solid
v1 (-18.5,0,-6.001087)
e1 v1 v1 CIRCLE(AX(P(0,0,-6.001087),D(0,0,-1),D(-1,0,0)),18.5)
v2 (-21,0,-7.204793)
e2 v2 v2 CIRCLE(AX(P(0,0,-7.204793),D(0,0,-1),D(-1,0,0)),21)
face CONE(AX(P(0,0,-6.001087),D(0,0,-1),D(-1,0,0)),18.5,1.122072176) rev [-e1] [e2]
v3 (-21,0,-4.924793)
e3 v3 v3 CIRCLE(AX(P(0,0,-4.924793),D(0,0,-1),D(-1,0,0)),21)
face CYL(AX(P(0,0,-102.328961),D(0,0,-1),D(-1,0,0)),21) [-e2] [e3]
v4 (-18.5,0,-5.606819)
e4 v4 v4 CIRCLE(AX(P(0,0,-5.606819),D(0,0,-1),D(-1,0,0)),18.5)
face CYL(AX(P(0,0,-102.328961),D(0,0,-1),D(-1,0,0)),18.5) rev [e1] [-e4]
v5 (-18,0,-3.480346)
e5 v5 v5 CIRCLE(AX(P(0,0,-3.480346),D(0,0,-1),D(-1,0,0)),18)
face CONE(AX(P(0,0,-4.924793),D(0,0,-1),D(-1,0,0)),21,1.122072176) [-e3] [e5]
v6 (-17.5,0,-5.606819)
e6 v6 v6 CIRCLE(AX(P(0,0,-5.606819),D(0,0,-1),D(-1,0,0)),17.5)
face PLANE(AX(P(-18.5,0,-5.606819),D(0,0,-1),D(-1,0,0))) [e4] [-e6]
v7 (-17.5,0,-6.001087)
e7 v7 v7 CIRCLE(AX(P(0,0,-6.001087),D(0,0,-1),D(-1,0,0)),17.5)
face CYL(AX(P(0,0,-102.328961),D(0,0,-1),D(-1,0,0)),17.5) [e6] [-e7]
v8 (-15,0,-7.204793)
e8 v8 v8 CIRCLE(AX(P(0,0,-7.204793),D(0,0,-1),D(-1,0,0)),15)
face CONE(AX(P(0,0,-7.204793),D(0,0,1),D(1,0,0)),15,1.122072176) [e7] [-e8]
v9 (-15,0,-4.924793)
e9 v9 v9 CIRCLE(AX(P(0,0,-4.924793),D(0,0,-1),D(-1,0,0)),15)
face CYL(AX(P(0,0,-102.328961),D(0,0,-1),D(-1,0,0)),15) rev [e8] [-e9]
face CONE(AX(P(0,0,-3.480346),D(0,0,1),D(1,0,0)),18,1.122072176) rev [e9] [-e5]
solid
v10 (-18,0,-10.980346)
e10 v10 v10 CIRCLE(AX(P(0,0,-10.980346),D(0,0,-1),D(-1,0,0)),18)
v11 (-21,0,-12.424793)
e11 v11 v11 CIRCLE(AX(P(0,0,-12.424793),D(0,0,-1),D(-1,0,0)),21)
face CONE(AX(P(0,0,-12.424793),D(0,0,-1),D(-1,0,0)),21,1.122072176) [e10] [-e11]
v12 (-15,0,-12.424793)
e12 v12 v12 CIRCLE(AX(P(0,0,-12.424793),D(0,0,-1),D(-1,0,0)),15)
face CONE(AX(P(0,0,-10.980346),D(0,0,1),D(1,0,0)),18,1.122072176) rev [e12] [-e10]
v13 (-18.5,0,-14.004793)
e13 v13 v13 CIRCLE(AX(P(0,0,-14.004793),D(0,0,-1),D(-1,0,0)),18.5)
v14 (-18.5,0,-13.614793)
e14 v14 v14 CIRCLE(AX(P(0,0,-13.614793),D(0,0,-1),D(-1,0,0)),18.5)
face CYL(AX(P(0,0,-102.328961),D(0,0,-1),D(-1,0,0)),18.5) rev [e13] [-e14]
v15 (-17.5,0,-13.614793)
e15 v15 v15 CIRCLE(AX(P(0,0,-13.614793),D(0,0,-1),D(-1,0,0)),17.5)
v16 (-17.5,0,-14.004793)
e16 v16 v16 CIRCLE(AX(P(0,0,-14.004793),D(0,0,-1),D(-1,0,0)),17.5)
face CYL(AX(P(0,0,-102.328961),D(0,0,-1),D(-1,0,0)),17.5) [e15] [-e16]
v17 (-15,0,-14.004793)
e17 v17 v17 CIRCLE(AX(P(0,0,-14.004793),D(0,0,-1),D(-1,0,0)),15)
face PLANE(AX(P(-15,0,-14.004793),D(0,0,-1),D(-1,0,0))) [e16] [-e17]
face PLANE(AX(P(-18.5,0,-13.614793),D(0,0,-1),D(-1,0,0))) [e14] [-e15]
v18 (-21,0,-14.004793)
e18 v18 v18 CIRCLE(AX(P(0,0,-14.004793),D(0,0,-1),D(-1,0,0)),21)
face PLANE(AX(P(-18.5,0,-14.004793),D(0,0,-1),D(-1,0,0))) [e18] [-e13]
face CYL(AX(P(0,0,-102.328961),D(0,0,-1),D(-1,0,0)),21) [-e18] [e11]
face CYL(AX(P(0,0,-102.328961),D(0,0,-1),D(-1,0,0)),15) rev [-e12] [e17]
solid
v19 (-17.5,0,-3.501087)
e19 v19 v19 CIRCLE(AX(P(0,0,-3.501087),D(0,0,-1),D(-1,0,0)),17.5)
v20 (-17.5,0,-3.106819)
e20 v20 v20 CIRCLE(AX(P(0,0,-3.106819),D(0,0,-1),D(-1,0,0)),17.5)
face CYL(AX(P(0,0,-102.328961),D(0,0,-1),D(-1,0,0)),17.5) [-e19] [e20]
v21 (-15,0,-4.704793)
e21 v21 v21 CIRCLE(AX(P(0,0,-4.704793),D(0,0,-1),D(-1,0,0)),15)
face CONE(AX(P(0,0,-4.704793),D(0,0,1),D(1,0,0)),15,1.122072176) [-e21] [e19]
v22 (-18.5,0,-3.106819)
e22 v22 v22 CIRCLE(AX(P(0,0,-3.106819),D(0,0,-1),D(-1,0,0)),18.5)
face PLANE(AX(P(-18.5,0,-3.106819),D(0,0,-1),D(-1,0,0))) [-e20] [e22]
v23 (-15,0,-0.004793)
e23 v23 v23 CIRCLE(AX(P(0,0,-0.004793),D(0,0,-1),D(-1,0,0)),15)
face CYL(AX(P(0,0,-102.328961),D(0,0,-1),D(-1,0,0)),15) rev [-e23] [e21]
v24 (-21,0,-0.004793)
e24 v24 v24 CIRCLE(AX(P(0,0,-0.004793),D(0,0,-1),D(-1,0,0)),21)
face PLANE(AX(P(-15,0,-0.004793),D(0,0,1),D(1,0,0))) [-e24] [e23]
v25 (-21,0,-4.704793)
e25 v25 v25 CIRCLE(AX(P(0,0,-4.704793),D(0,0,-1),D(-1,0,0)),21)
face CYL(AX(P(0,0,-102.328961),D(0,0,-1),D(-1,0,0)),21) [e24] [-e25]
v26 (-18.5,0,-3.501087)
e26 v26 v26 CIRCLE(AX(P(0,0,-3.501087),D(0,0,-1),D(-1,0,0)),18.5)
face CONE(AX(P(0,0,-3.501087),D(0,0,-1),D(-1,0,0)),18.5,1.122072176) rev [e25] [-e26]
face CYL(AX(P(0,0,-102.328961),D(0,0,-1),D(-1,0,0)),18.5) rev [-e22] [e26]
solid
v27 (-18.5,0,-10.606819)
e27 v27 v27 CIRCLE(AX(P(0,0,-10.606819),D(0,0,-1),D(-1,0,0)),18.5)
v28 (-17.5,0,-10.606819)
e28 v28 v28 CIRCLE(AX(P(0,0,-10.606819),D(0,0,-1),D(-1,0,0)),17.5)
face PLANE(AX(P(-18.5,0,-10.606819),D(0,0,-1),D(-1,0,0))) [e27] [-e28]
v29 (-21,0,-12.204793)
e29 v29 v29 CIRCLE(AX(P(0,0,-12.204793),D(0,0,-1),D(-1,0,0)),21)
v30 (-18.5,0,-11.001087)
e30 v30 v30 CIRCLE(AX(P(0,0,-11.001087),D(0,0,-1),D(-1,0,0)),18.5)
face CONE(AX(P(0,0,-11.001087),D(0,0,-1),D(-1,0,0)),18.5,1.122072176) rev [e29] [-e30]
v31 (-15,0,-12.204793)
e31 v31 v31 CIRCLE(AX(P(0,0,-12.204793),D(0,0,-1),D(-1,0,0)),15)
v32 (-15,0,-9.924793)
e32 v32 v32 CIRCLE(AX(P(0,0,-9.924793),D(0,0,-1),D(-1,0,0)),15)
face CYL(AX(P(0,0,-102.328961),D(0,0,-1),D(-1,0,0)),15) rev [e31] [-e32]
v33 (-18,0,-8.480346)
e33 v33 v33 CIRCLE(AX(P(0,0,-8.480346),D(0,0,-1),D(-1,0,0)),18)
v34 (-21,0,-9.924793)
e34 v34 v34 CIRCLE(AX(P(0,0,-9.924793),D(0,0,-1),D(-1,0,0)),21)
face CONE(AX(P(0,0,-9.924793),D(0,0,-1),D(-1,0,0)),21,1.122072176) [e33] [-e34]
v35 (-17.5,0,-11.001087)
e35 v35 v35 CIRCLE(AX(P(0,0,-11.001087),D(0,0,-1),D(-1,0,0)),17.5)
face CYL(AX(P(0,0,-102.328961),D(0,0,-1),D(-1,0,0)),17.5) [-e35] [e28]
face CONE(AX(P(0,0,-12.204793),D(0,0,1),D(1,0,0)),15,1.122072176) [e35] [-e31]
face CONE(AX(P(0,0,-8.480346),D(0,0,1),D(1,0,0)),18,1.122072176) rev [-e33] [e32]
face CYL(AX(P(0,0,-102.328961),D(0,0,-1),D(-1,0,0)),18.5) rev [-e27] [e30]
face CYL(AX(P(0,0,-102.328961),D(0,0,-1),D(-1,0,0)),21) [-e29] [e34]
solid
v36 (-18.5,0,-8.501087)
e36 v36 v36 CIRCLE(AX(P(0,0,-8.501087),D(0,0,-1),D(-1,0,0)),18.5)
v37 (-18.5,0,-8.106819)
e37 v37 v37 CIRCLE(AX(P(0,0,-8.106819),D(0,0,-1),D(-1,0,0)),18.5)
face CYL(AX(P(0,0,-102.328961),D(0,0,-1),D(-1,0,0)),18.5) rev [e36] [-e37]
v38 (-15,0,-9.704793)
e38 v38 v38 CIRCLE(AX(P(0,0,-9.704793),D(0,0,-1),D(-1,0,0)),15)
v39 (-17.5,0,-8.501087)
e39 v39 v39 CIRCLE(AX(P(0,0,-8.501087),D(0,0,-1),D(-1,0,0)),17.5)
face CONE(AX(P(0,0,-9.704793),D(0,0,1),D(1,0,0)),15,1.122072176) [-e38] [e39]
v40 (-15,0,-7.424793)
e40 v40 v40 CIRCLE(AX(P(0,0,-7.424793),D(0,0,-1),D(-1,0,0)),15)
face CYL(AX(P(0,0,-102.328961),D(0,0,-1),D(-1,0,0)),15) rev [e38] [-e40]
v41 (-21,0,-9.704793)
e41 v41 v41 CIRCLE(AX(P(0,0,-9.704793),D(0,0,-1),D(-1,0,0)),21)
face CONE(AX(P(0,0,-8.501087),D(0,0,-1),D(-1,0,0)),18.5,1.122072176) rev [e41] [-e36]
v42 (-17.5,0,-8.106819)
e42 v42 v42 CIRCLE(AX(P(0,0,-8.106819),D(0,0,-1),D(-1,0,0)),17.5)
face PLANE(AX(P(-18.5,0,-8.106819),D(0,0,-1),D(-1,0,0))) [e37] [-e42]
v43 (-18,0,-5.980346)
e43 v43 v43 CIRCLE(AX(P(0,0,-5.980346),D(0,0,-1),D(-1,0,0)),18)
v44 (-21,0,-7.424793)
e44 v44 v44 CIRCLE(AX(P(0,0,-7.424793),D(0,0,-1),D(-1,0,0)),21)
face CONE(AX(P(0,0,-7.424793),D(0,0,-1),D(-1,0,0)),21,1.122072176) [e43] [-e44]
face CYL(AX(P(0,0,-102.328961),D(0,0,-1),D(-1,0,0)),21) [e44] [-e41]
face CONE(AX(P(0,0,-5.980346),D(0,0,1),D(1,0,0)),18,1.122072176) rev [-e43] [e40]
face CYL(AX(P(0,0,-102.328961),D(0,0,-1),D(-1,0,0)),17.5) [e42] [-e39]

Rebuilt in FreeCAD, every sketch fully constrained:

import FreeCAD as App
import Part
import Sketcher

V = App.Vector
Q = App.Units.Quantity

doc = App.newDocument("Part")
body = doc.addObject("PartDesign::Body", "Body")
body.AllowCompound = True

# Sketch on XZ plane
sketch1 = body.newObject("Sketcher::SketchObject", "Sketch")
sketch1.AttachmentSupport = (doc.getObject("XZ_Plane"), [""])
sketch1.MapMode = "FlatFace"
sketch1.addGeometry([
    Part.LineSegment(V(-21, 0, 0), V(-15, 0, 0)),  # 0
    Part.LineSegment(V(-15, 0, 0), V(-15, -4.7, 0)),  # 1
    Part.LineSegment(V(-15, -4.7, 0), V(-17.5, -3.5, 0)),  # 2
    Part.LineSegment(V(-17.5, -3.5, 0), V(-17.5, -3.11, 0)),  # 3
    Part.LineSegment(V(-17.5, -3.11, 0), V(-18.5, -3.11, 0)),  # 4
    Part.LineSegment(V(-18.5, -3.11, 0), V(-18.5, -3.5, 0)),  # 5
    Part.LineSegment(V(-18.5, -3.5, 0), V(-21, -4.7, 0)),  # 6
    Part.LineSegment(V(-21, -4.7, 0), V(-21, 0, 0)),  # 7
    Part.LineSegment(V(-15, -14, 0), V(-17.5, -14, 0)),  # 8
    Part.LineSegment(V(-17.5, -14, 0), V(-17.5, -13.61, 0)),  # 9
    Part.LineSegment(V(-17.5, -13.61, 0), V(-18.5, -13.61, 0)),  # 10
    Part.LineSegment(V(-18.5, -13.61, 0), V(-18.5, -14, 0)),  # 11
    Part.LineSegment(V(-18.5, -14, 0), V(-21, -14, 0)),  # 12
    Part.LineSegment(V(-21, -14, 0), V(-21, -12.42, 0)),  # 13
    Part.LineSegment(V(-21, -12.42, 0), V(-18, -10.98, 0)),  # 14
    Part.LineSegment(V(-18, -10.98, 0), V(-15, -12.42, 0)),  # 15
    Part.LineSegment(V(-15, -12.42, 0), V(-15, -14, 0)),  # 16
    Part.LineSegment(V(-15, -12.2, 0), V(-17.5, -11, 0)),  # 17
    Part.LineSegment(V(-17.5, -11, 0), V(-17.5, -10.61, 0)),  # 18
    Part.LineSegment(V(-17.5, -10.61, 0), V(-18.5, -10.61, 0)),  # 19
    Part.LineSegment(V(-18.5, -10.61, 0), V(-18.5, -11, 0)),  # 20
    Part.LineSegment(V(-18.5, -11, 0), V(-21, -12.2, 0)),  # 21
    Part.LineSegment(V(-21, -12.2, 0), V(-21, -9.92, 0)),  # 22
    Part.LineSegment(V(-21, -9.92, 0), V(-18, -8.48, 0)),  # 23
    Part.LineSegment(V(-18, -8.48, 0), V(-15, -9.92, 0)),  # 24
    Part.LineSegment(V(-15, -9.92, 0), V(-15, -12.2, 0)),  # 25
    Part.LineSegment(V(-18.5, -8.5, 0), V(-21, -9.7, 0)),  # 26
    Part.LineSegment(V(-21, -9.7, 0), V(-21, -7.42, 0)),  # 27
    Part.LineSegment(V(-21, -7.42, 0), V(-18, -5.98, 0)),  # 28
    Part.LineSegment(V(-18, -5.98, 0), V(-15, -7.42, 0)),  # 29
    Part.LineSegment(V(-15, -7.42, 0), V(-15, -9.7, 0)),  # 30
    Part.LineSegment(V(-15, -9.7, 0), V(-17.5, -8.5, 0)),  # 31
    Part.LineSegment(V(-17.5, -8.5, 0), V(-17.5, -8.11, 0)),  # 32
    Part.LineSegment(V(-17.5, -8.11, 0), V(-18.5, -8.11, 0)),  # 33
    Part.LineSegment(V(-18.5, -8.11, 0), V(-18.5, -8.5, 0)),  # 34
    Part.LineSegment(V(-18.5, -6, 0), V(-21, -7.2, 0)),  # 35
    Part.LineSegment(V(-21, -7.2, 0), V(-21, -4.92, 0)),  # 36
    Part.LineSegment(V(-21, -4.92, 0), V(-18, -3.48, 0)),  # 37
    Part.LineSegment(V(-18, -3.48, 0), V(-15, -4.92, 0)),  # 38
    Part.LineSegment(V(-15, -4.92, 0), V(-15, -7.2, 0)),  # 39
    Part.LineSegment(V(-15, -7.2, 0), V(-17.5, -6, 0)),  # 40
    Part.LineSegment(V(-17.5, -6, 0), V(-17.5, -5.61, 0)),  # 41
    Part.LineSegment(V(-17.5, -5.61, 0), V(-18.5, -5.61, 0)),  # 42
    Part.LineSegment(V(-18.5, -5.61, 0), V(-18.5, -6, 0)),  # 43
], False)
sketch1.addConstraint([
    Sketcher.Constraint("Coincident", 0, 2, 1, 1),
    Sketcher.Constraint("Coincident", 1, 2, 2, 1),
    Sketcher.Constraint("Coincident", 2, 2, 3, 1),
    Sketcher.Constraint("Coincident", 3, 2, 4, 1),
    Sketcher.Constraint("Coincident", 4, 2, 5, 1),
    Sketcher.Constraint("Coincident", 5, 2, 6, 1),
    Sketcher.Constraint("Coincident", 6, 2, 7, 1),
    Sketcher.Constraint("Coincident", 7, 2, 0, 1),
    Sketcher.Constraint("Coincident", 8, 2, 9, 1),
    Sketcher.Constraint("Coincident", 9, 2, 10, 1),
    Sketcher.Constraint("Coincident", 10, 2, 11, 1),
    Sketcher.Constraint("Coincident", 11, 2, 12, 1),
    Sketcher.Constraint("Coincident", 12, 2, 13, 1),
    Sketcher.Constraint("Coincident", 13, 2, 14, 1),
    Sketcher.Constraint("Coincident", 14, 2, 15, 1),
    Sketcher.Constraint("Coincident", 15, 2, 16, 1),
    Sketcher.Constraint("Coincident", 16, 2, 8, 1),
    Sketcher.Constraint("Coincident", 17, 2, 18, 1),
    Sketcher.Constraint("Coincident", 18, 2, 19, 1),
    Sketcher.Constraint("Coincident", 19, 2, 20, 1),
    Sketcher.Constraint("Coincident", 20, 2, 21, 1),
    Sketcher.Constraint("Coincident", 21, 2, 22, 1),
    Sketcher.Constraint("Coincident", 22, 2, 23, 1),
    Sketcher.Constraint("Coincident", 23, 2, 24, 1),
    Sketcher.Constraint("Coincident", 24, 2, 25, 1),
    Sketcher.Constraint("Coincident", 25, 2, 17, 1),
    Sketcher.Constraint("Coincident", 26, 2, 27, 1),
    Sketcher.Constraint("Coincident", 27, 2, 28, 1),
    Sketcher.Constraint("Coincident", 28, 2, 29, 1),
    Sketcher.Constraint("Coincident", 29, 2, 30, 1),
    Sketcher.Constraint("Coincident", 30, 2, 31, 1),
    Sketcher.Constraint("Coincident", 31, 2, 32, 1),
    Sketcher.Constraint("Coincident", 32, 2, 33, 1),
    Sketcher.Constraint("Coincident", 33, 2, 34, 1),
    Sketcher.Constraint("Coincident", 34, 2, 26, 1),
    Sketcher.Constraint("Coincident", 35, 2, 36, 1),
    Sketcher.Constraint("Coincident", 36, 2, 37, 1),
    Sketcher.Constraint("Coincident", 37, 2, 38, 1),
    Sketcher.Constraint("Coincident", 38, 2, 39, 1),
    Sketcher.Constraint("Coincident", 39, 2, 40, 1),
    Sketcher.Constraint("Coincident", 40, 2, 41, 1),
    Sketcher.Constraint("Coincident", 41, 2, 42, 1),
    Sketcher.Constraint("Coincident", 42, 2, 43, 1),
    Sketcher.Constraint("Coincident", 43, 2, 35, 1),
    Sketcher.Constraint("Horizontal", 0),
    Sketcher.Constraint("Vertical", 1),
    Sketcher.Constraint("Vertical", 3),
    Sketcher.Constraint("Horizontal", 4),
    Sketcher.Constraint("Vertical", 5),
    Sketcher.Constraint("Vertical", 7),
    Sketcher.Constraint("Horizontal", 8),
    Sketcher.Constraint("Vertical", 9),
    Sketcher.Constraint("Horizontal", 10),
    Sketcher.Constraint("Vertical", 11),
    Sketcher.Constraint("Horizontal", 12),
    Sketcher.Constraint("Vertical", 13),
    Sketcher.Constraint("Vertical", 16),
    Sketcher.Constraint("Vertical", 18),
    Sketcher.Constraint("Horizontal", 19),
    Sketcher.Constraint("Vertical", 20),
    Sketcher.Constraint("Vertical", 22),
    Sketcher.Constraint("Vertical", 25),
    Sketcher.Constraint("Vertical", 27),
    Sketcher.Constraint("Vertical", 30),
    Sketcher.Constraint("Vertical", 32),
    Sketcher.Constraint("Horizontal", 33),
    Sketcher.Constraint("Vertical", 34),
    Sketcher.Constraint("Vertical", 36),
    Sketcher.Constraint("Vertical", 39),
    Sketcher.Constraint("Vertical", 41),
    Sketcher.Constraint("Horizontal", 42),
    Sketcher.Constraint("Vertical", 43),
    Sketcher.Constraint("Parallel", 6, 14),
    Sketcher.Constraint("Parallel", 2, 15),
    Sketcher.Constraint("Parallel", 15, 17),
    Sketcher.Constraint("Parallel", 14, 21),
    Sketcher.Constraint("Parallel", 21, 23),
    Sketcher.Constraint("Parallel", 17, 24),
    Sketcher.Constraint("Parallel", 23, 26),
    Sketcher.Constraint("Parallel", 26, 28),
    Sketcher.Constraint("Parallel", 24, 29),
    Sketcher.Constraint("Parallel", 29, 31),
    Sketcher.Constraint("Parallel", 28, 35),
    Sketcher.Constraint("Parallel", 35, 37),
    Sketcher.Constraint("Parallel", 31, 38),
    Sketcher.Constraint("Parallel", 38, 40),
    Sketcher.Constraint("Horizontal", 2, 2, 5, 2),
    Sketcher.Constraint("Horizontal", 1, 2, 6, 2),
    Sketcher.Constraint("Horizontal", 8, 2, 11, 2),
    Sketcher.Constraint("Horizontal", 13, 2, 15, 2),
    Sketcher.Constraint("Horizontal", 17, 2, 20, 2),
    Sketcher.Constraint("Horizontal", 22, 2, 24, 2),
    Sketcher.Constraint("Horizontal", 21, 2, 25, 2),
    Sketcher.Constraint("Horizontal", 27, 2, 29, 2),
    Sketcher.Constraint("Horizontal", 26, 2, 30, 2),
    Sketcher.Constraint("Horizontal", 31, 2, 34, 2),
    Sketcher.Constraint("Horizontal", 36, 2, 38, 2),
    Sketcher.Constraint("Horizontal", 35, 2, 39, 2),
    Sketcher.Constraint("Horizontal", 40, 2, 43, 2),
    Sketcher.Constraint("Vertical", 3, 2, 8, 2),
    Sketcher.Constraint("Vertical", 5, 2, 10, 2),
    Sketcher.Constraint("Vertical", 7, 2, 12, 2),
    Sketcher.Constraint("Vertical", 1, 2, 15, 2),
    Sketcher.Constraint("Vertical", 9, 2, 17, 2),
    Sketcher.Constraint("Vertical", 11, 2, 19, 2),
    Sketcher.Constraint("Vertical", 13, 2, 21, 2),
    Sketcher.Constraint("Vertical", 22, 2, 26, 2),
    Sketcher.Constraint("Vertical", 23, 2, 28, 2),
    Sketcher.Constraint("Vertical", 18, 2, 31, 2),
    Sketcher.Constraint("Vertical", 27, 2, 35, 2),
    Sketcher.Constraint("Vertical", 28, 2, 37, 2),
    Sketcher.Constraint("Vertical", 32, 2, 40, 2),
    Sketcher.Constraint("Equal", 8, 12),
    Sketcher.Constraint("Equal", 5, 18),
    Sketcher.Constraint("Equal", 25, 27),
    Sketcher.Constraint("Equal", 20, 32),
    Sketcher.Constraint("Equal", 30, 36),
    Sketcher.Constraint("Equal", 34, 41),
    Sketcher.Constraint("DistanceX", 0, 1, 0, 2, Q("6 mm")),
    Sketcher.Constraint("DistanceX", 4, 2, 4, 1, Q("1 mm")),
    Sketcher.Constraint("DistanceY", 1, 2, 1, 1, Q("4.7 mm")),
    Sketcher.Constraint("DistanceX", 0, 2, -1, 1, Q("15 mm")),
    Sketcher.Constraint("DistanceY", 9, 1, 9, 2, Q("0.39 mm")),
    Sketcher.Constraint("DistanceY", 13, 1, 13, 2, Q("1.58 mm")),
    Sketcher.Constraint("DistanceY", 22, 1, 22, 2, Q("2.28 mm")),
    Sketcher.Constraint("Angle", 2, Q("154.29 deg")),
    Sketcher.Constraint("DistanceY", 8, 2, 1, 2, Q("9.3 mm")),
    Sketcher.Constraint("DistanceY", 12, 2, 21, 2, Q("1.8 mm")),
    Sketcher.Constraint("DistanceY", 21, 2, 26, 2, Q("2.5 mm")),
    Sketcher.Constraint("DistanceY", 35, 2, 6, 2, Q("2.5 mm")),
    Sketcher.Constraint("DistanceY", 3, 1, 3, 2, Q("0.394267 mm")),
    Sketcher.Constraint("DistanceY", 3, 2, -1, 1, Q("3.106819 mm")),
])
revolution = body.newObject("PartDesign::Revolution", "Revolution")
revolution.Profile = sketch1
revolution.ReferenceAxis = (sketch1, ["V_Axis"])
revolution.Angle = 360

doc.recompute()
